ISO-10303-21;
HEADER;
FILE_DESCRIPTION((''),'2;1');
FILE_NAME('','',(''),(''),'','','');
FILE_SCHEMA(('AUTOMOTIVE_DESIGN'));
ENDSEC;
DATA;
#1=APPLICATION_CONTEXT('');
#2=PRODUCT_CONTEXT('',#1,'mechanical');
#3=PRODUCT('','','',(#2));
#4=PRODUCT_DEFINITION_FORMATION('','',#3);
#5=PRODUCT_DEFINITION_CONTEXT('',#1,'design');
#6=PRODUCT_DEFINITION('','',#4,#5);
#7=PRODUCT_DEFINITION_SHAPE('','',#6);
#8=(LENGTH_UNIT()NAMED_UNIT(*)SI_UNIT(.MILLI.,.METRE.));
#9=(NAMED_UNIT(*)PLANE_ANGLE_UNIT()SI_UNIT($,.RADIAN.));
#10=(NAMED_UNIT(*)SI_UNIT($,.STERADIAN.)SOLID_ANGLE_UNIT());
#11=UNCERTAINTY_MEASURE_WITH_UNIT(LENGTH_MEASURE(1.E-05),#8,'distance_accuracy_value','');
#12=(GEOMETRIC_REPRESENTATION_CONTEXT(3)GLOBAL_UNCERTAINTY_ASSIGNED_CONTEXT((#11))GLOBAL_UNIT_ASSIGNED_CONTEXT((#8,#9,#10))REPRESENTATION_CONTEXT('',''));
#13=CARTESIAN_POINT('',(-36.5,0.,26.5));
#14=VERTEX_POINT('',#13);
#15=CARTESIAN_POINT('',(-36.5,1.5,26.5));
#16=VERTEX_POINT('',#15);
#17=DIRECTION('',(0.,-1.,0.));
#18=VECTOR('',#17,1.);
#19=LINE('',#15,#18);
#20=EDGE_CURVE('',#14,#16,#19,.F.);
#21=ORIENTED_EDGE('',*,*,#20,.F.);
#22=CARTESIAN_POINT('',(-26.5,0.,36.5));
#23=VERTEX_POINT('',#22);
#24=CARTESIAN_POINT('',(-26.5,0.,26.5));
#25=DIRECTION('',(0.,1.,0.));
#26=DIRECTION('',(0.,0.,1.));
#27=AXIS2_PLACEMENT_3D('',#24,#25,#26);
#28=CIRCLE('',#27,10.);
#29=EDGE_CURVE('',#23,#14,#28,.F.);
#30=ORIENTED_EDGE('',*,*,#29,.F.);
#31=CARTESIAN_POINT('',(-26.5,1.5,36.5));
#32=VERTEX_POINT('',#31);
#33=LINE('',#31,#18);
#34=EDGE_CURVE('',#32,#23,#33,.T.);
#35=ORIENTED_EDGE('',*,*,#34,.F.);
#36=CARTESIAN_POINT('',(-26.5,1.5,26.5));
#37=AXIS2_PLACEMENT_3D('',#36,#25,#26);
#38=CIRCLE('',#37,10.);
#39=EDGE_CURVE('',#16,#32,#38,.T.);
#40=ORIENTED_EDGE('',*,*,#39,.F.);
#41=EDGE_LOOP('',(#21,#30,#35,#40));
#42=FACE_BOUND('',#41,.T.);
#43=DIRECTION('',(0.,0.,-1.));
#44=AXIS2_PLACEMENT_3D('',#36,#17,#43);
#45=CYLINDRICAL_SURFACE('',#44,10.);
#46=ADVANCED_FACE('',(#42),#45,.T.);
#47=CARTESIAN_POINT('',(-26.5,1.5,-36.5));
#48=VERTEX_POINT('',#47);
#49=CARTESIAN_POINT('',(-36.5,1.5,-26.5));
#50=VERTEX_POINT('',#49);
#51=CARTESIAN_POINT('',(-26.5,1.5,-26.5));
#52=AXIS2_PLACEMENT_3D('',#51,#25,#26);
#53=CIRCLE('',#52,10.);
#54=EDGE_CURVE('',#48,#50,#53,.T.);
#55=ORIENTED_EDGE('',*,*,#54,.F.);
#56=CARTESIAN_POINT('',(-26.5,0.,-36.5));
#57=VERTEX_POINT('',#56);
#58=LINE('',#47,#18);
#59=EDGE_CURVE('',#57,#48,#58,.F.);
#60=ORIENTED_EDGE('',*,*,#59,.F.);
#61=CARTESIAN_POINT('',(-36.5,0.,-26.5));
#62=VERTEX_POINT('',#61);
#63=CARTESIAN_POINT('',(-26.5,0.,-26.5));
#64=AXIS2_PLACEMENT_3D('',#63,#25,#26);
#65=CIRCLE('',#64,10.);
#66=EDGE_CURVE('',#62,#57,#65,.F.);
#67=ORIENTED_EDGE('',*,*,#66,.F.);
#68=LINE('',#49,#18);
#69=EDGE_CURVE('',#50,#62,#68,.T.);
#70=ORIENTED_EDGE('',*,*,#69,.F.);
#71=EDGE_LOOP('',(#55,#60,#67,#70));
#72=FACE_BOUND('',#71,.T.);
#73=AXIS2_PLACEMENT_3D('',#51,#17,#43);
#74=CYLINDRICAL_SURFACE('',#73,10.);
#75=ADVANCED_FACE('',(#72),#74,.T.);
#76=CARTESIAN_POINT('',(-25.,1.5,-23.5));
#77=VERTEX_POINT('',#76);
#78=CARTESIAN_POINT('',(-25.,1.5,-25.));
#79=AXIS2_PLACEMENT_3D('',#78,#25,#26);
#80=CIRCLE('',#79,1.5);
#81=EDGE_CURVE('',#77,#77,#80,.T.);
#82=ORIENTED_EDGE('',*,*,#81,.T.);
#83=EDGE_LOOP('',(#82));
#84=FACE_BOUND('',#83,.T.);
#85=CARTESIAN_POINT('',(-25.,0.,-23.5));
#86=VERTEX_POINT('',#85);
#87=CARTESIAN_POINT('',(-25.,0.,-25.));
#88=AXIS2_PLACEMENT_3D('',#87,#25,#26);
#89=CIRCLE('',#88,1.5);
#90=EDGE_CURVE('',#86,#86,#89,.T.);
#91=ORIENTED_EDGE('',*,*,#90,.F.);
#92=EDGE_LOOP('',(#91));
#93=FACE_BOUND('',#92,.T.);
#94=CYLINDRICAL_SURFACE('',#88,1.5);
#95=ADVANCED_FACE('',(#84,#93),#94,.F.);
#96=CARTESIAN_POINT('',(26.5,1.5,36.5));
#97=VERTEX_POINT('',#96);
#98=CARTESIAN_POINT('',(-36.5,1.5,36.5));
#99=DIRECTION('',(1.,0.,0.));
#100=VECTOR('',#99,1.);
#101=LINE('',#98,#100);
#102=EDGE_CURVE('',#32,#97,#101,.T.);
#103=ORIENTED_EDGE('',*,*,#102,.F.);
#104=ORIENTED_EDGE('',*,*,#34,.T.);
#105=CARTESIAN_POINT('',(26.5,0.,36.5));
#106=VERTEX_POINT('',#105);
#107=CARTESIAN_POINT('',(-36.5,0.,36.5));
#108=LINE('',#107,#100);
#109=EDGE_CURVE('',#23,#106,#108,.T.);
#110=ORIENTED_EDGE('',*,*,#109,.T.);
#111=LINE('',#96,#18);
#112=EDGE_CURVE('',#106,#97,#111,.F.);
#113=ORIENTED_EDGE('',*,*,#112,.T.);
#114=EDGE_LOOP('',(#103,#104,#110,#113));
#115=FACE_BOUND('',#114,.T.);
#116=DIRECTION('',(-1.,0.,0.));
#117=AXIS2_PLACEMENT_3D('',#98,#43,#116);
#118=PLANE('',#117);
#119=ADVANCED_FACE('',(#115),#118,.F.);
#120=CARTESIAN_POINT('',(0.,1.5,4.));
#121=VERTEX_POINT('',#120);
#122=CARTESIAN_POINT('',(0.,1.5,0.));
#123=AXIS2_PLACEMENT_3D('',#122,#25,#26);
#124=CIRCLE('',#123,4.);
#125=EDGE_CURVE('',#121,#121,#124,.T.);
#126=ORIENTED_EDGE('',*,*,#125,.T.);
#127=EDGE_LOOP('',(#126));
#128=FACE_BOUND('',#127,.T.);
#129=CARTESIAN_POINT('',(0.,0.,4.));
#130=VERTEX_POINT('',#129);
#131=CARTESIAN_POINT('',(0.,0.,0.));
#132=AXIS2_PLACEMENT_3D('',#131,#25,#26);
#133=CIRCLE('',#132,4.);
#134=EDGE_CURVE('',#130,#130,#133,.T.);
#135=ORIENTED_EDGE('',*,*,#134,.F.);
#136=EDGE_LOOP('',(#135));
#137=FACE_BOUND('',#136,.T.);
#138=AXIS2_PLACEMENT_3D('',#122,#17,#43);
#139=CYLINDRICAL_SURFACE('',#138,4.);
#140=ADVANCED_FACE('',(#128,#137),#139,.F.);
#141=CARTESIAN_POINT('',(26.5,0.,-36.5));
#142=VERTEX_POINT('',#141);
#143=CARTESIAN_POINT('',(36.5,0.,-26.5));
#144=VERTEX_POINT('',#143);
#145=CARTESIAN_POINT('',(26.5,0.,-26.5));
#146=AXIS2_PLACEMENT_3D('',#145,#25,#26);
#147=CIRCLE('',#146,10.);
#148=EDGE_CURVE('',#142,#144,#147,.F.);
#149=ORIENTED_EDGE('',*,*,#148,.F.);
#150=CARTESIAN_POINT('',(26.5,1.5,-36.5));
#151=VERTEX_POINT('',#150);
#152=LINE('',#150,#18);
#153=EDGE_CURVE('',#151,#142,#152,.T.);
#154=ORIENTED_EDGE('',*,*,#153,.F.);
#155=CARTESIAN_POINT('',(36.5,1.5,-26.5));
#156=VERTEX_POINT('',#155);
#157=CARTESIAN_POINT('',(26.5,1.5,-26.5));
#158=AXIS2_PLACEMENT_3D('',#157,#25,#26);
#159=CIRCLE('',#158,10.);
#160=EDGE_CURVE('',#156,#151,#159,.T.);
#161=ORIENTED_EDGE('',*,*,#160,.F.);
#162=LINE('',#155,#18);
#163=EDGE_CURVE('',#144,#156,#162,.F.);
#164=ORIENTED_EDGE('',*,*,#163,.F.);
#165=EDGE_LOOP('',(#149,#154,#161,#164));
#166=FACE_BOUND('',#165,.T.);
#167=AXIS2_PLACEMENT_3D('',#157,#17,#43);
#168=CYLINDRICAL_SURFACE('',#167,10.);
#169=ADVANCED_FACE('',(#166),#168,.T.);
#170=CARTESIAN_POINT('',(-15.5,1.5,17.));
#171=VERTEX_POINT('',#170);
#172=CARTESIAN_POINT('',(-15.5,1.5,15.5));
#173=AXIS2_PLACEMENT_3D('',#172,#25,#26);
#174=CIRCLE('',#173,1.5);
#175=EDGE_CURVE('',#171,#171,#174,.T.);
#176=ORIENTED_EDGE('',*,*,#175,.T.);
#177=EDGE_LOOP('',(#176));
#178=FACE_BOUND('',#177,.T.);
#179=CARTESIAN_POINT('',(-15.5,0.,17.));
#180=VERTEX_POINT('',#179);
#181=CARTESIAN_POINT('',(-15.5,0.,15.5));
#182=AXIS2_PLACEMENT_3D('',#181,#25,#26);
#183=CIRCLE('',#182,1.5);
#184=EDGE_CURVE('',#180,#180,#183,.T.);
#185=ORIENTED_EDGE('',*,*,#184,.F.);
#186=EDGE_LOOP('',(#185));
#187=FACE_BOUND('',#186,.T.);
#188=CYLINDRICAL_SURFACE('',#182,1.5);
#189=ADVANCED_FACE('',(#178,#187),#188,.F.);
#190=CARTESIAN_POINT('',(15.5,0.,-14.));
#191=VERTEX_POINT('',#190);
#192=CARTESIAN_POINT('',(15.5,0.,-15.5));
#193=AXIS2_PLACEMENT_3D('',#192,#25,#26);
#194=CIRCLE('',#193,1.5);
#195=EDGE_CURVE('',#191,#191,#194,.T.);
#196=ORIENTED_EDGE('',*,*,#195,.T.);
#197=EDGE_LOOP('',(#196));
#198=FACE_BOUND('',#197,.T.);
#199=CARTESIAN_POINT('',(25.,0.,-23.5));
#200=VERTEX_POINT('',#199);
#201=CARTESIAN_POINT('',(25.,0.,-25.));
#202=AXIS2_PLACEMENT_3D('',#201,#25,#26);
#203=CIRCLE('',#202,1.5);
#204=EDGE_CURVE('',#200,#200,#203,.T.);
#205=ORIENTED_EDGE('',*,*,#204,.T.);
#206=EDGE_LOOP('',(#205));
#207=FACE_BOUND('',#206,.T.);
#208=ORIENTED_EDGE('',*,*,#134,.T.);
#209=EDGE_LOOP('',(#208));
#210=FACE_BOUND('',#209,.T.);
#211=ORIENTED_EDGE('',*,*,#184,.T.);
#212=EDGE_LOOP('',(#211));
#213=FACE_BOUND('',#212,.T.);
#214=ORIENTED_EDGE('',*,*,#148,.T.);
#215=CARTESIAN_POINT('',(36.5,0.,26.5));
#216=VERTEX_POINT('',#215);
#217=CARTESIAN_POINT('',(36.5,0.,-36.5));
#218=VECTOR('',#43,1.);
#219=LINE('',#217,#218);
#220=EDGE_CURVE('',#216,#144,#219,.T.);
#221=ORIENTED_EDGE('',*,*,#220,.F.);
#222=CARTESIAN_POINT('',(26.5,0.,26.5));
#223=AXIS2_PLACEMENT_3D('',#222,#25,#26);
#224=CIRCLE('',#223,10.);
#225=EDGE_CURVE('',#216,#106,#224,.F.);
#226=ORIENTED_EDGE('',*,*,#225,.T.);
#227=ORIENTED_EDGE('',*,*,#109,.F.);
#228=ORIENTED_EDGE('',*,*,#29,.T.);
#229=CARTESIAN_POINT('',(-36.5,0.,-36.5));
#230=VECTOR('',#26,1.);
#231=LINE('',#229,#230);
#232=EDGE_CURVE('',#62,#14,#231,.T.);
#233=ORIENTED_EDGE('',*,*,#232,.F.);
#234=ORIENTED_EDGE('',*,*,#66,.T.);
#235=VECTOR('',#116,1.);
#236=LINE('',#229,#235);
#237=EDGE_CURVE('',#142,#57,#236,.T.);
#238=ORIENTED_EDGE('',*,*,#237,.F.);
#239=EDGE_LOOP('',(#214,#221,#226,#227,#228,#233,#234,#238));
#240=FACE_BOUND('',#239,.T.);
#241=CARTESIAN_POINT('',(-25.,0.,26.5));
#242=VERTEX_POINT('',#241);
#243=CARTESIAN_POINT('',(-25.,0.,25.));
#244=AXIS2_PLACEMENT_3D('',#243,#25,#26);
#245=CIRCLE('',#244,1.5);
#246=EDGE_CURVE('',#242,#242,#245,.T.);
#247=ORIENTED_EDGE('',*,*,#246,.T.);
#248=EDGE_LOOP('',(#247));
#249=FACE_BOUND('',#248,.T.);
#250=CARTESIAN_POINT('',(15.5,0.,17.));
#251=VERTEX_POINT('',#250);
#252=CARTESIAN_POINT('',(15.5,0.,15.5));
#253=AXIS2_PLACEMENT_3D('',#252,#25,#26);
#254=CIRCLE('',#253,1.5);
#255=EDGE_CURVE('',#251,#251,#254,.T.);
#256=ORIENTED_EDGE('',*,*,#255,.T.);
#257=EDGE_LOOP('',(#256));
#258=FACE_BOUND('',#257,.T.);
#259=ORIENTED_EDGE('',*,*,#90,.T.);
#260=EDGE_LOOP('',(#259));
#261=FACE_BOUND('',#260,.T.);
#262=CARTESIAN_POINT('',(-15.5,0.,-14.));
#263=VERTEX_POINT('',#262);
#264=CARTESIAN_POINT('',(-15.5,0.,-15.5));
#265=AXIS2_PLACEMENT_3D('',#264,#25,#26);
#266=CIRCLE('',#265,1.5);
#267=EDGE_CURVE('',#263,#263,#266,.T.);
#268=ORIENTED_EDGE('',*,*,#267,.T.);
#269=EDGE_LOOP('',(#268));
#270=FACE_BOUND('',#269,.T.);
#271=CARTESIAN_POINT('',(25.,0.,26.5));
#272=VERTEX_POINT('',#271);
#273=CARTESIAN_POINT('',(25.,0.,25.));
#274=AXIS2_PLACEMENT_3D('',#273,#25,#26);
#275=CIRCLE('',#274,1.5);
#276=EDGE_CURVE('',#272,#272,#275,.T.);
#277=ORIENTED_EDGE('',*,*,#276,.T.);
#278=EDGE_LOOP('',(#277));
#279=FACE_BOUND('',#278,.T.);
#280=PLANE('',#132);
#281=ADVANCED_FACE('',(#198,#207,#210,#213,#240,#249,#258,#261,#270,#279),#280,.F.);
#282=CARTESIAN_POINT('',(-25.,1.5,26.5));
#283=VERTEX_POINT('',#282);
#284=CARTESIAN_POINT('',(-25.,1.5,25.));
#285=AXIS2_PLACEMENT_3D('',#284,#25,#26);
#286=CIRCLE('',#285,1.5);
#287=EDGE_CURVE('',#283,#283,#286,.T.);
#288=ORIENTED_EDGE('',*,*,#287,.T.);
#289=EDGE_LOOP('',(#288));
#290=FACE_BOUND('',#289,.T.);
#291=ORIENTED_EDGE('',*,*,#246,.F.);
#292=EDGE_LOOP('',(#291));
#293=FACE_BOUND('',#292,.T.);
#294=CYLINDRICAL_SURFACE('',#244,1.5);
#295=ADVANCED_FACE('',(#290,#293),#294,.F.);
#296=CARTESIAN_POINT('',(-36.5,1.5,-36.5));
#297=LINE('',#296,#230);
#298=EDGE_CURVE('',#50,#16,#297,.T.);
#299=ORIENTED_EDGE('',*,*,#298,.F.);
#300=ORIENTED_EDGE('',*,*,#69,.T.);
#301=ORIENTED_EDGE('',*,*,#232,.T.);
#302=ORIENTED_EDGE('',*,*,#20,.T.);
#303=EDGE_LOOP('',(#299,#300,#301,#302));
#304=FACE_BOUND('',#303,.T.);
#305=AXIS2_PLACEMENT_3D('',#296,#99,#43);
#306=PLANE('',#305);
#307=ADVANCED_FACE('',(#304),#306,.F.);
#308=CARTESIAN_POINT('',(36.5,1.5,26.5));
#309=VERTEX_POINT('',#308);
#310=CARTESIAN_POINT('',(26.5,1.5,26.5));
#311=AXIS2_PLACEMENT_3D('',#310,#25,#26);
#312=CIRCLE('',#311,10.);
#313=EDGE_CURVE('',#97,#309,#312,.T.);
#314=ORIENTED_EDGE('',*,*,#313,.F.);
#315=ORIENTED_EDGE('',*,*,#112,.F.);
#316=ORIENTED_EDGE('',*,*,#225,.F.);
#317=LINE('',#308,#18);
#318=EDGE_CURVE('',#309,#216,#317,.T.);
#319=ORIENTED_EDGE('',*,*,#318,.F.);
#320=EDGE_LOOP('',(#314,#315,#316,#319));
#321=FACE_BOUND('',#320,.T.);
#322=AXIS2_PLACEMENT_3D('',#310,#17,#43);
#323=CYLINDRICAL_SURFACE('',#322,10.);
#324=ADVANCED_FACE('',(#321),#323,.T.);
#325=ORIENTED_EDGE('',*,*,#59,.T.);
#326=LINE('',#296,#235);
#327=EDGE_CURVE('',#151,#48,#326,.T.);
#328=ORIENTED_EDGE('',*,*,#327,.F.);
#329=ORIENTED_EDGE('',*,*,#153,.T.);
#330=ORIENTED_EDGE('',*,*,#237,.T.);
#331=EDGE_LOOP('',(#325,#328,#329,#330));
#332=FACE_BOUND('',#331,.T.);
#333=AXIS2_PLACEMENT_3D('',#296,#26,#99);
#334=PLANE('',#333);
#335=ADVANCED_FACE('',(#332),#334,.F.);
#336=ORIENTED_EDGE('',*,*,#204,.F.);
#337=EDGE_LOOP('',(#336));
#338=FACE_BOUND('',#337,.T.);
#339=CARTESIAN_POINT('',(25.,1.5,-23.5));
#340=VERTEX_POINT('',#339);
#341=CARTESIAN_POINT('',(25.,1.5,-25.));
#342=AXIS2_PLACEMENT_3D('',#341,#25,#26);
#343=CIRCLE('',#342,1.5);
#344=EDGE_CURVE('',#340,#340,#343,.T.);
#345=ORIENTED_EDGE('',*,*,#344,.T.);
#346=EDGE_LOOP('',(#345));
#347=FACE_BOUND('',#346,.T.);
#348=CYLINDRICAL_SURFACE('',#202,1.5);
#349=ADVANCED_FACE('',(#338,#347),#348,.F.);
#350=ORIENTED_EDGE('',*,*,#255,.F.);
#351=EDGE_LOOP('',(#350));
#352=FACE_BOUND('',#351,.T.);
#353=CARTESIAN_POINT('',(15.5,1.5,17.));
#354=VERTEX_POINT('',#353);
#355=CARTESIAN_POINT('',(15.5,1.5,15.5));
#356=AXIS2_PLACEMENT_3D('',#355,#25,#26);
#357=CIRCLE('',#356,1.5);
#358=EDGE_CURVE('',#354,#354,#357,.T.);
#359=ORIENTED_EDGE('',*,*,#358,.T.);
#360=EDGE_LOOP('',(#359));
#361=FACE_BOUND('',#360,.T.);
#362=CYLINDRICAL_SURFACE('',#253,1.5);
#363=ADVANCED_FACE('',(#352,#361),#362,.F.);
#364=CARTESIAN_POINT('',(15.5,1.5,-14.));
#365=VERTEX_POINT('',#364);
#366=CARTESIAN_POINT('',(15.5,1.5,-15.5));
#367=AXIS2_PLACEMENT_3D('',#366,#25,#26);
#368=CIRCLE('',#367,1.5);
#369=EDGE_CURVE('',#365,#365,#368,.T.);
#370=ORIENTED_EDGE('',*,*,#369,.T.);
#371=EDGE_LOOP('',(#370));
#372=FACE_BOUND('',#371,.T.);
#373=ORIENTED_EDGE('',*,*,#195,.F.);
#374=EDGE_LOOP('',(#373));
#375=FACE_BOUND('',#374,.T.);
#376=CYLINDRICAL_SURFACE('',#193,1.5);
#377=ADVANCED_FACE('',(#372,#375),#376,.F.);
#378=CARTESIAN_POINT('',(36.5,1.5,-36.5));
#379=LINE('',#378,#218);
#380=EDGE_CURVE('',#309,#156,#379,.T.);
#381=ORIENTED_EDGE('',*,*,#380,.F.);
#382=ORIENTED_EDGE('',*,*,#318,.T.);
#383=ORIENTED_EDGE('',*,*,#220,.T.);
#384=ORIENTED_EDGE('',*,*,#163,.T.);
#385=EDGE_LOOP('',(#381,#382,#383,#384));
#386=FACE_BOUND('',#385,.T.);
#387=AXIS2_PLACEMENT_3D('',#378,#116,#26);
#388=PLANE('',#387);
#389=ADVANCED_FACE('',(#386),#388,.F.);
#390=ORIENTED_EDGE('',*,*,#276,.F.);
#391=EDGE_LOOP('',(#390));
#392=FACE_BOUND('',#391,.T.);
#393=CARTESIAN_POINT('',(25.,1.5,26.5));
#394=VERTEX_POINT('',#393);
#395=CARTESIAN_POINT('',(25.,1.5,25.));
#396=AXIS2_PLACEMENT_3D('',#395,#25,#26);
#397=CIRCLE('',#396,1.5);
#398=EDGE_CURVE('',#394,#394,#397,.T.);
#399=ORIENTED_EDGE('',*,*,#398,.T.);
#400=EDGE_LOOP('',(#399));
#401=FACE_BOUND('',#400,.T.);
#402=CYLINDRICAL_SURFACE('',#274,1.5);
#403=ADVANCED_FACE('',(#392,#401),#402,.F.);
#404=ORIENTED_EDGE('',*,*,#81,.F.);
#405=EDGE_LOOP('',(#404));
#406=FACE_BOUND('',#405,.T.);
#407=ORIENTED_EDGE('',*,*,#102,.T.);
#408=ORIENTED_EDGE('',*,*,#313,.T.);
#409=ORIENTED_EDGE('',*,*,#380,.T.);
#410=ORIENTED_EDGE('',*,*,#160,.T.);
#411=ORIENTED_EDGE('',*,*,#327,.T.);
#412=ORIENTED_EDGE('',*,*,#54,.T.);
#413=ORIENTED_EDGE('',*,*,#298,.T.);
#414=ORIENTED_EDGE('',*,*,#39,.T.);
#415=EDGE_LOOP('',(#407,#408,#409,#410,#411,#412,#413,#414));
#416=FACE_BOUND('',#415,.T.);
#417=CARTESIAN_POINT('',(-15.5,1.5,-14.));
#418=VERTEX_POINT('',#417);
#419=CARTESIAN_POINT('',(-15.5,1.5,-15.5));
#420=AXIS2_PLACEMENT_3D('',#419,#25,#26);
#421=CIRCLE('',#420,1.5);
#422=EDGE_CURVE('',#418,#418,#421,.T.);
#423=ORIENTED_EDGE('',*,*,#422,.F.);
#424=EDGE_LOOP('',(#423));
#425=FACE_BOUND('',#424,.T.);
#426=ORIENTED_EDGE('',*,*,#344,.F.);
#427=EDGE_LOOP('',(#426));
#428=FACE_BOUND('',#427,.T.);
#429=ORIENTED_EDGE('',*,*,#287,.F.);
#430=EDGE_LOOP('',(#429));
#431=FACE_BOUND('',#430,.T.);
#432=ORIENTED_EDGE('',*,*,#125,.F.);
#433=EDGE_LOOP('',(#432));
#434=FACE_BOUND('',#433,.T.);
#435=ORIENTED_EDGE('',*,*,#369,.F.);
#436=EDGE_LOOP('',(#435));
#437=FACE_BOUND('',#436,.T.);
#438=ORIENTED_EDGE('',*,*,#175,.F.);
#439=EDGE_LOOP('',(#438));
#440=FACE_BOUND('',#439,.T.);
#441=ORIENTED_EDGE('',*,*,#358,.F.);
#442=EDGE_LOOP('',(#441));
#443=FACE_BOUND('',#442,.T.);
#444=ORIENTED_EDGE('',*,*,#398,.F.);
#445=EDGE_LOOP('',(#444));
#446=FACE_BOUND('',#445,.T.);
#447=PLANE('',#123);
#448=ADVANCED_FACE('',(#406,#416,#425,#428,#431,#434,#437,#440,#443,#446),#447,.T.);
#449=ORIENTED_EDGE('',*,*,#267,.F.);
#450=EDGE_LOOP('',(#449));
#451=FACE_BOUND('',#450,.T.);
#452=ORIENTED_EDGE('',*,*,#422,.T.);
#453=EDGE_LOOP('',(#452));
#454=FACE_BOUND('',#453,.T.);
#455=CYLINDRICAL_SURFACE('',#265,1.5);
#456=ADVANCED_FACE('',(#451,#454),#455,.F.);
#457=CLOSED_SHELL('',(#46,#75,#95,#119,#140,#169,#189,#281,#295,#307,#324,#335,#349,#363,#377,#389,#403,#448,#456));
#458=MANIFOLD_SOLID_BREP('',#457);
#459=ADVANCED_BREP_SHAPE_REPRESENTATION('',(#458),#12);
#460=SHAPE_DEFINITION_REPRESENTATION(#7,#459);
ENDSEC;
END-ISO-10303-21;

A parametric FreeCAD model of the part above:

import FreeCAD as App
import Part
import Sketcher
from FreeCAD import Vector
Q = App.Units.Quantity


def edges_at(feature, points):
    """Names of the edges that pass closest to the given points."""
    edges = feature.Shape.Edges
    near = lambda p: min(range(len(edges)), key=lambda i: edges[i].distToShape(Part.Vertex(*p))[0])
    return sorted({f"Edge{near(p) + 1}" for p in points})


def add_polygon(sketch, points):
    """Adds a closed chain of lines whose ends are joined by coincident constraints."""
    first, n = sketch.GeometryCount, len(points)
    for a, b in zip(points, points[1:] + points[:1]):
        sketch.addGeometry(Part.LineSegment(App.Vector(*a, 0), App.Vector(*b, 0)), False)
    for i in range(n):
        sketch.addConstraint(Sketcher.Constraint("Coincident", first + i, 2, first + (i + 1) % n, 1))

doc = App.newDocument("Part")
params = doc.addObject("Spreadsheet::Sheet", "Params")
for row, (alias, value) in enumerate([
    ("sketch1_diameter", "8 mm"),
    ("sketch1_width", "73 mm"),
    ("pad1_length", "1.5 mm"),
    ("sketch2_diameter", "3 mm"),
    ("sketch3_diameter", "3 mm"),
    ("fillet_radius", "10 mm"),
], start=1):
    params.set(f"A{row}", alias)
    params.set(f"B{row}", "=" + value)
    params.setAlias(f"B{row}", alias)

body = doc.addObject("PartDesign::Body", "Body")

sketch1 = doc.addObject("Sketcher::SketchObject", "Sketch")
body.addObject(sketch1)
sketch1.AttachmentSupport = (doc.XZ_Plane, [""])
sketch1.MapMode = "FlatFace"
add_polygon(sketch1, [(-36.5, -36.5), (-36.5, 36.5), (36.5, 36.5), (36.5, -36.5)])
sketch1.addGeometry(Part.Circle(Vector(0, 0, 0), Vector(0, 0, 1), 4), False)
sketch1.addConstraint(Sketcher.Constraint("Vertical", 0))
sketch1.addConstraint(Sketcher.Constraint("Horizontal", 1))
sketch1.addConstraint(Sketcher.Constraint("Vertical", 2))
sketch1.addConstraint(Sketcher.Constraint("Horizontal", 3))
sketch1.addConstraint(Sketcher.Constraint("Coincident", 4, 3, -1, 1))
sketch1.addConstraint(Sketcher.Constraint("Symmetric", 0, 2, 2, 2, -1, 1))
sketch1.addConstraint(Sketcher.Constraint("Equal", 3, 0))
sketch1.addConstraint(Sketcher.Constraint("Diameter", 4, Q("8 mm")))
sketch1.addConstraint(Sketcher.Constraint("DistanceX", 1, 1, 1, 2, Q("73 mm")))
sketch1.setExpression("Constraints[11]", "Params.sketch1_diameter")
sketch1.setExpression("Constraints[12]", "Params.sketch1_width")
pad1 = doc.addObject("PartDesign::Pad", "Pad")
body.addObject(pad1)
pad1.Profile = sketch1
pad1.setExpression("Length", "Params.pad1_length")
pad1.Reversed = True

sketch2 = doc.addObject("Sketcher::SketchObject", "Sketch001")
body.addObject(sketch2)
sketch2.AttachmentSupport = (doc.XZ_Plane, [""])
sketch2.MapMode = "FlatFace"
sketch2.AttachmentOffset = App.Placement(Vector(0, 0, -1.5), App.Rotation())
sketch2.addGeometry(Part.Circle(Vector(-15.5, -15.5, 0), Vector(0, 0, 1), 1.5), False)
sketch2.addGeometry(Part.Circle(Vector(15.5, -15.5, 0), Vector(0, 0, 1), 1.5), False)
sketch2.addGeometry(Part.Circle(Vector(15.5, 15.5, 0), Vector(0, 0, 1), 1.5), False)
sketch2.addGeometry(Part.Circle(Vector(-15.5, 15.5, 0), Vector(0, 0, 1), 1.5), False)
sketch2.addConstraint(Sketcher.Constraint("Equal", 0, 1))
sketch2.addConstraint(Sketcher.Constraint("Equal", 1, 2))
sketch2.addConstraint(Sketcher.Constraint("Equal", 2, 3))
sketch2.addConstraint(Sketcher.Constraint("Symmetric", 0, 3, 2, 3, -1, 1))
sketch2.addConstraint(Sketcher.Constraint("Symmetric", 1, 3, 3, 3, -1, 1))
sketch2.addConstraint(Sketcher.Constraint("Symmetric", 0, 3, 1, 3, -2))
sketch2.addConstraint(Sketcher.Constraint("Diameter", 0, Q("3 mm")))
sketch2.addConstraint(Sketcher.Constraint("DistanceX", 0, 3, 1, 3, Q("31 mm")))
sketch2.addConstraint(Sketcher.Constraint("DistanceY", 1, 3, 2, 3, Q("31 mm")))
sketch2.setExpression("Constraints[6]", "Params.sketch2_diameter")
pocket1 = doc.addObject("PartDesign::Pocket", "Pocket")
body.addObject(pocket1)
pocket1.Profile = sketch2
pocket1.Type = "ThroughAll"
pocket1.Reversed = True

sketch3 = doc.addObject("Sketcher::SketchObject", "Sketch002")
body.addObject(sketch3)
sketch3.AttachmentSupport = (doc.XZ_Plane, [""])
sketch3.MapMode = "FlatFace"
sketch3.AttachmentOffset = App.Placement(Vector(0, 0, -1.5), App.Rotation())
sketch3.addGeometry(Part.Circle(Vector(-25, -25, 0), Vector(0, 0, 1), 1.5), False)
sketch3.addGeometry(Part.Circle(Vector(25, -25, 0), Vector(0, 0, 1), 1.5), False)
sketch3.addGeometry(Part.Circle(Vector(25, 25, 0), Vector(0, 0, 1), 1.5), False)
sketch3.addGeometry(Part.Circle(Vector(-25, 25, 0), Vector(0, 0, 1), 1.5), False)
sketch3.addConstraint(Sketcher.Constraint("Equal", 0, 1))
sketch3.addConstraint(Sketcher.Constraint("Equal", 1, 2))
sketch3.addConstraint(Sketcher.Constraint("Equal", 2, 3))
sketch3.addConstraint(Sketcher.Constraint("Symmetric", 0, 3, 2, 3, -1, 1))
sketch3.addConstraint(Sketcher.Constraint("Symmetric", 1, 3, 3, 3, -1, 1))
sketch3.addConstraint(Sketcher.Constraint("Symmetric", 0, 3, 1, 3, -2))
sketch3.addConstraint(Sketcher.Constraint("Diameter", 0, Q("3 mm")))
sketch3.addConstraint(Sketcher.Constraint("DistanceX", 0, 3, -1, 1, Q("25 mm")))
sketch3.addConstraint(Sketcher.Constraint("DistanceY", 0, 3, -1, 1, Q("25 mm")))
sketch3.setExpression("Constraints[6]", "Params.sketch3_diameter")
pocket2 = doc.addObject("PartDesign::Pocket", "Pocket001")
body.addObject(pocket2)
pocket2.Profile = sketch3
pocket2.Type = "ThroughAll"
pocket2.Reversed = True
doc.recompute()

fillet = doc.addObject("PartDesign::Fillet", "Fillet")
body.addObject(fillet)
fillet.Base = (pocket2, edges_at(pocket2, [
    (36.5, 0.75, 36.5),
    (-36.5, 0.75, 36.5),
    (-36.5, 0.75, -36.5),
    (36.5, 0.75, -36.5),
]))
fillet.setExpression("Radius", "Params.fillet_radius")

doc.recompute()
